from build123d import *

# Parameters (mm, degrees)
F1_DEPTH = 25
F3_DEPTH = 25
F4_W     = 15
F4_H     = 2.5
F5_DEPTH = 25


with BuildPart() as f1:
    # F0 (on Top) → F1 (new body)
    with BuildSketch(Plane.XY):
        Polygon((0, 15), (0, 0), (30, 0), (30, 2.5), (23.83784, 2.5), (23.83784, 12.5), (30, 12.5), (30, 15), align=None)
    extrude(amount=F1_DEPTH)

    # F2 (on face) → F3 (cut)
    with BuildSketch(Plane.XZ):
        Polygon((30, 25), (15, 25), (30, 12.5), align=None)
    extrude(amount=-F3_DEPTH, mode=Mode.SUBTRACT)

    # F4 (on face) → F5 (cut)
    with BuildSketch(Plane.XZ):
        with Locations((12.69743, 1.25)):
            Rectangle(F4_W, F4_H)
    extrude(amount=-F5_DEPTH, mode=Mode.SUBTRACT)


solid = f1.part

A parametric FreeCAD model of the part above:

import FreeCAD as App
import Part
import Sketcher
from FreeCAD import Vector
Q = App.Units.Quantity

doc = App.newDocument("Part")
body = doc.addObject("PartDesign::Body", "Body")

sketch1 = body.newObject("Sketcher::SketchObject", "Sketch")
sketch1.AttachmentSupport = (doc.getObject("XY_Plane"), [""])
sketch1.MapMode = "FlatFace"
sketch1.addGeometry(Part.LineSegment(Vector(0, 15, 0), Vector(0, 0, 0)), False)
sketch1.addGeometry(Part.LineSegment(Vector(0, 0, 0), Vector(30, 0, 0)), False)
sketch1.addGeometry(Part.LineSegment(Vector(30, 0, 0), Vector(30, 2.5, 0)), False)
sketch1.addGeometry(Part.LineSegment(Vector(30, 2.5, 0), Vector(23.8, 2.5, 0)), False)
sketch1.addGeometry(Part.LineSegment(Vector(23.8, 2.5, 0), Vector(23.8, 12.5, 0)), False)
sketch1.addGeometry(Part.LineSegment(Vector(23.8, 12.5, 0), Vector(30, 12.5, 0)), False)
sketch1.addGeometry(Part.LineSegment(Vector(30, 12.5, 0), Vector(30, 15, 0)), False)
sketch1.addGeometry(Part.LineSegment(Vector(30, 15, 0), Vector(0, 15, 0)), False)
sketch1.addConstraint(Sketcher.Constraint("Coincident", 0, 2, 1, 1))
sketch1.addConstraint(Sketcher.Constraint("Coincident", 1, 2, 2, 1))
sketch1.addConstraint(Sketcher.Constraint("Coincident", 2, 2, 3, 1))
sketch1.addConstraint(Sketcher.Constraint("Coincident", 3, 2, 4, 1))
sketch1.addConstraint(Sketcher.Constraint("Coincident", 4, 2, 5, 1))
sketch1.addConstraint(Sketcher.Constraint("Coincident", 5, 2, 6, 1))
sketch1.addConstraint(Sketcher.Constraint("Coincident", 6, 2, 7, 1))
sketch1.addConstraint(Sketcher.Constraint("Coincident", 7, 2, 0, 1))
sketch1.addConstraint(Sketcher.Constraint("Vertical", 0))
sketch1.addConstraint(Sketcher.Constraint("Horizontal", 1))
sketch1.addConstraint(Sketcher.Constraint("Vertical", 2))
sketch1.addConstraint(Sketcher.Constraint("Horizontal", 3))
sketch1.addConstraint(Sketcher.Constraint("Vertical", 4))
sketch1.addConstraint(Sketcher.Constraint("Horizontal", 5))
sketch1.addConstraint(Sketcher.Constraint("Vertical", 6))
sketch1.addConstraint(Sketcher.Constraint("Horizontal", 7))
sketch1.addConstraint(Sketcher.Constraint("Coincident", 0, 2, -1, 1))
sketch1.addConstraint(Sketcher.Constraint("Vertical", 2, 2, 5, 2))
sketch1.addConstraint(Sketcher.Constraint("Equal", 2, 6))
sketch1.addConstraint(Sketcher.Constraint("DistanceX", 1, 1, 1, 2, Q("30 mm")))
sketch1.addConstraint(Sketcher.Constraint("DistanceY", 0, 2, 0, 1, Q("15 mm")))
sketch1.addConstraint(Sketcher.Constraint("DistanceY", 4, 1, 4, 2, Q("10 mm")))
sketch1.addConstraint(Sketcher.Constraint("DistanceX", 3, 2, 3, 1, Q("6.16216 mm")))
pad1 = body.newObject("PartDesign::Pad", "Pad")
pad1.Profile = sketch1
pad1.Length = 25

sketch2 = body.newObject("Sketcher::SketchObject", "Sketch001")
sketch2.AttachmentSupport = (doc.getObject("XZ_Plane"), [""])
sketch2.MapMode = "FlatFace"
sketch2.addGeometry(Part.LineSegment(Vector(30, 25, 0), Vector(15, 25, 0)), False)
sketch2.addGeometry(Part.LineSegment(Vector(15, 25, 0), Vector(30, 12, 0)), False)
sketch2.addGeometry(Part.LineSegment(Vector(30, 12, 0), Vector(30, 25, 0)), False)
sketch2.addConstraint(Sketcher.Constraint("Coincident", 0, 2, 1, 1))
sketch2.addConstraint(Sketcher.Constraint("Coincident", 1, 2, 2, 1))
sketch2.addConstraint(Sketcher.Constraint("Coincident", 2, 2, 0, 1))
sketch2.addConstraint(Sketcher.Constraint("Horizontal", 0))
sketch2.addConstraint(Sketcher.Constraint("Vertical", 2))
sketch2.addConstraint(Sketcher.Constraint("DistanceX", 0, 2, 0, 1, Q("15 mm")))
sketch2.addConstraint(Sketcher.Constraint("DistanceY", 2, 1, 2, 2, Q("12.5 mm")))
sketch2.addConstraint(Sketcher.Constraint("DistanceX", -1, 1, 0, 2, Q("15 mm")))
sketch2.addConstraint(Sketcher.Constraint("DistanceY", -1, 1, 0, 2, Q("25 mm")))
pocket1 = body.newObject("PartDesign::Pocket", "Pocket")
pocket1.Profile = sketch2
pocket1.Length = 25

sketch3 = body.newObject("Sketcher::SketchObject", "Sketch002")
sketch3.AttachmentSupport = (doc.getObject("XZ_Plane"), [""])
sketch3.MapMode = "FlatFace"
sketch3.addGeometry(Part.LineSegment(Vector(5.2, 2.5, 0), Vector(5.2, 0, 0)), False)
sketch3.addGeometry(Part.LineSegment(Vector(5.2, 0, 0), Vector(20.2, 0, 0)), False)
sketch3.addGeometry(Part.LineSegment(Vector(20.2, 0, 0), Vector(20.2, 2.5, 0)), False)
sketch3.addGeometry(Part.LineSegment(Vector(20.2, 2.5, 0), Vector(5.2, 2.5, 0)), False)
sketch3.addConstraint(Sketcher.Constraint("Coincident", 0, 2, 1, 1))
sketch3.addConstraint(Sketcher.Constraint("Coincident", 1, 2, 2, 1))
sketch3.addConstraint(Sketcher.Constraint("Coincident", 2, 2, 3, 1))
sketch3.addConstraint(Sketcher.Constraint("Coincident", 3, 2, 0, 1))
sketch3.addConstraint(Sketcher.Constraint("Vertical", 0))
sketch3.addConstraint(Sketcher.Constraint("Horizontal", 1))
sketch3.addConstraint(Sketcher.Constraint("Vertical", 2))
sketch3.addConstraint(Sketcher.Constraint("Horizontal", 3))
sketch3.addConstraint(Sketcher.Constraint("PointOnObject", 0, 2, -1))
sketch3.addConstraint(Sketcher.Constraint("DistanceX", 1, 1, 1, 2, Q("15 mm")))
sketch3.addConstraint(Sketcher.Constraint("DistanceY", 0, 2, 0, 1, Q("2.5 mm")))
sketch3.addConstraint(Sketcher.Constraint("DistanceX", -1, 1, 0, 2, Q("5.19743 mm")))
pocket2 = body.newObject("PartDesign::Pocket", "Pocket001")
pocket2.Profile = sketch3
pocket2.Length = 25

doc.recompute()
